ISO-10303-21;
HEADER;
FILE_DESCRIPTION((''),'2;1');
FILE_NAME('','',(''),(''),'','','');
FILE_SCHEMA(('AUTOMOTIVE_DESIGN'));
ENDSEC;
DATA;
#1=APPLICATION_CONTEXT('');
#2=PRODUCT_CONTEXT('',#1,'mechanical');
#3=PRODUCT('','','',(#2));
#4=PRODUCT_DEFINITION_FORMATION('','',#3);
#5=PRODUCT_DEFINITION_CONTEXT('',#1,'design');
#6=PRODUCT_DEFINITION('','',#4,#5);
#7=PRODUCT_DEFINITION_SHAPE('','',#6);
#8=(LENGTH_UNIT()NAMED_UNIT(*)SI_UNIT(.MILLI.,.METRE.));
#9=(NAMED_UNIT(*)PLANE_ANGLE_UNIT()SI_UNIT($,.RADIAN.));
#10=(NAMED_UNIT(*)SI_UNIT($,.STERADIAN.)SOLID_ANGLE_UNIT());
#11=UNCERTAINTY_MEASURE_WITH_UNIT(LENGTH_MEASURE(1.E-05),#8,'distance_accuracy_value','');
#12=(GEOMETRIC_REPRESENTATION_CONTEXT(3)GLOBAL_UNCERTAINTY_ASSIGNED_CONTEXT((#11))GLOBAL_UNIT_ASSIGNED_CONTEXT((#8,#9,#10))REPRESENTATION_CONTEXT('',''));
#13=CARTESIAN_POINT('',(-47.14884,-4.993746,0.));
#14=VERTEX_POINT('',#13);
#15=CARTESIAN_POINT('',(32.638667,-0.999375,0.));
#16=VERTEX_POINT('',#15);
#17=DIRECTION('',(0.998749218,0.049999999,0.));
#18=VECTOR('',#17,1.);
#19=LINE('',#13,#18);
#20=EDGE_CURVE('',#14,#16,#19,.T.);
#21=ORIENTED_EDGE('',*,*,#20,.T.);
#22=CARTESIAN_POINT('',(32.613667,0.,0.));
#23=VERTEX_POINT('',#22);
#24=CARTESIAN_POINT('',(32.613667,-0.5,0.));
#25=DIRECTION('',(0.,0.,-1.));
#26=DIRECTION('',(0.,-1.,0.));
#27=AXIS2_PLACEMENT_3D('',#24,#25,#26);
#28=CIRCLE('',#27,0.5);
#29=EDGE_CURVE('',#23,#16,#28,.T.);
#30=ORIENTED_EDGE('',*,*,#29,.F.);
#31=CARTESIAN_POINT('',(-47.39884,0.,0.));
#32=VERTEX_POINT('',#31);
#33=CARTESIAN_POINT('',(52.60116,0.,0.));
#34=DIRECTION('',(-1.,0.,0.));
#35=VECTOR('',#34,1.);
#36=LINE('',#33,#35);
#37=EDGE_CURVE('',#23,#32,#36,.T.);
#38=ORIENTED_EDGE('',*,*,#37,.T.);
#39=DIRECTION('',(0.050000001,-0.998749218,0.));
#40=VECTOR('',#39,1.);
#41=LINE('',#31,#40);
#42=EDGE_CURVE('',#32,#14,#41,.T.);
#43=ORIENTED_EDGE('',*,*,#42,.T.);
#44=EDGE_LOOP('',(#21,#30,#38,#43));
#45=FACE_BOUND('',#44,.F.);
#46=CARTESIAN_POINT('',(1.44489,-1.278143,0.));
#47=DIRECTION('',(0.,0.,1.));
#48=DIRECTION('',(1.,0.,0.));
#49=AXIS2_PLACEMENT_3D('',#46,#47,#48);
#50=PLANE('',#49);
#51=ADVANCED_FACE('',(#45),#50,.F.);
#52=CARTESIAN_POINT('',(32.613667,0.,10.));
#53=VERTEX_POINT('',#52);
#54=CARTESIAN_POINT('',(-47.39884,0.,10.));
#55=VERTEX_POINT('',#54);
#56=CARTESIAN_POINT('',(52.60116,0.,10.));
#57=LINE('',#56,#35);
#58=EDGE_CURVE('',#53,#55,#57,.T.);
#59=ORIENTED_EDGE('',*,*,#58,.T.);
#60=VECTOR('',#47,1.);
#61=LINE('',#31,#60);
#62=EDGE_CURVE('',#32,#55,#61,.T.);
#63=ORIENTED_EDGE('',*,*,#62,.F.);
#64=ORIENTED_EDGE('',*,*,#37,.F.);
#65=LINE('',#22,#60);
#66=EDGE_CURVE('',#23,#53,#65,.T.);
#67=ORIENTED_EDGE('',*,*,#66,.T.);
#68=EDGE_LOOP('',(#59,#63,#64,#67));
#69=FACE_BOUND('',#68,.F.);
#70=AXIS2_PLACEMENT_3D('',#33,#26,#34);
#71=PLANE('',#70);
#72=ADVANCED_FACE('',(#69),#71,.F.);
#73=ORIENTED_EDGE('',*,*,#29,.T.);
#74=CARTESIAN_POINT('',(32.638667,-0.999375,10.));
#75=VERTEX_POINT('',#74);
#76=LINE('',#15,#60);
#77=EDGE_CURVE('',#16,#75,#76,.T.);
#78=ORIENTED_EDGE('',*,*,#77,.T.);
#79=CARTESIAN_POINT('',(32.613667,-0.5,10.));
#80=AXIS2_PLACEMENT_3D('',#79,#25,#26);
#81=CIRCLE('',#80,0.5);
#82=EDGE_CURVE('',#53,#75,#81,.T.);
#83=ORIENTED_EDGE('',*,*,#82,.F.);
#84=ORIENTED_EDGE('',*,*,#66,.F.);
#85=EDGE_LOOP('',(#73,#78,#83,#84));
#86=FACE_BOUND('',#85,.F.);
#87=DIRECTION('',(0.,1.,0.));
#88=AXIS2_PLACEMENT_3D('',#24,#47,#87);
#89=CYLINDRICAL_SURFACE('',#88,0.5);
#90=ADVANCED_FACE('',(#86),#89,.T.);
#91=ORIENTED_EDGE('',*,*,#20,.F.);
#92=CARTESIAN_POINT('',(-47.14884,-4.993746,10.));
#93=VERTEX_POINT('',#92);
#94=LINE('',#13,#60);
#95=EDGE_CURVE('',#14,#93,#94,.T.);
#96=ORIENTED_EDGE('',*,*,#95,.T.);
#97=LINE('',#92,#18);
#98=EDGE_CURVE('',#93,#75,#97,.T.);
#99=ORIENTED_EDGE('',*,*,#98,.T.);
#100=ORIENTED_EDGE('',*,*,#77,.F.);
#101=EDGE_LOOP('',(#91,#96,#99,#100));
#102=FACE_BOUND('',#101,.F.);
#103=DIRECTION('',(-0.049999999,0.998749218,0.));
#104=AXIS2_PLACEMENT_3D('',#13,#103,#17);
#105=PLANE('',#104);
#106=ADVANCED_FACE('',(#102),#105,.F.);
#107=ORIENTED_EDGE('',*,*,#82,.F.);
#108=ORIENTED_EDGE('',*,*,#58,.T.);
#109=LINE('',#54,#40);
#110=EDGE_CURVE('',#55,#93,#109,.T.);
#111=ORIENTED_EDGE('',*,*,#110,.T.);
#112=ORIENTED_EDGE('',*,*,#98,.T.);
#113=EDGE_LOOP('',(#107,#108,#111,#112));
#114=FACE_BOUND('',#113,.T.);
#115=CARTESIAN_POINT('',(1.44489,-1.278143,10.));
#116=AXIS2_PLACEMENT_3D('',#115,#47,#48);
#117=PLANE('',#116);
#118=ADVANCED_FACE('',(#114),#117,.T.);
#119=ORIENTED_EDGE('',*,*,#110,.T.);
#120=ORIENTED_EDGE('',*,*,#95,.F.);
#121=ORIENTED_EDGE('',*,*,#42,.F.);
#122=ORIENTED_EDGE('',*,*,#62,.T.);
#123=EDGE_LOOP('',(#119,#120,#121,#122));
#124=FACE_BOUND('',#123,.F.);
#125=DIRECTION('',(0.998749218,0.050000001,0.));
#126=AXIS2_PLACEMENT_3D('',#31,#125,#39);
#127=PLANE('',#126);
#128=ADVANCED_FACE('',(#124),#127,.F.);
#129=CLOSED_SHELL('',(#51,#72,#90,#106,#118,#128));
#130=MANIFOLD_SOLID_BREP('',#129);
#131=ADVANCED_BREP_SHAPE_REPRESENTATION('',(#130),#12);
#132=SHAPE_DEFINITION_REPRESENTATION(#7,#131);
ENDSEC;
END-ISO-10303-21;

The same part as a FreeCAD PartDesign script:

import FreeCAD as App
import Part
import Sketcher


def edges_at(feature, points):
    """Names of the edges that pass closest to the given points."""
    edges = feature.Shape.Edges
    near = lambda p: min(range(len(edges)), key=lambda i: edges[i].distToShape(Part.Vertex(*p))[0])
    return sorted({f"Edge{near(p) + 1}" for p in points})

doc = App.newDocument("Part")
body = doc.addObject("PartDesign::Body", "Body")

# Sketch on XY plane
sketch1 = body.newObject("Sketcher::SketchObject", "Sketch")
sketch1.AttachmentSupport = (doc.getObject("XY_Plane"), [""])
sketch1.MapMode = "FlatFace"
sketch1.addGeometry(Part.LineSegment(App.Vector(52.60116, 0, 0), App.Vector(-47.39884, 0, 0)), False)
sketch1.addGeometry(Part.LineSegment(App.Vector(-47.39884, 0, 0), App.Vector(-47.14884, -4.993746, 0)), False)
sketch1.addGeometry(Part.LineSegment(App.Vector(-47.14884, -4.993746, 0), App.Vector(52.60116, 0, 0)), False)
sketch1.addConstraint(Sketcher.Constraint("Coincident", 0, 2, 1, 1))
sketch1.addConstraint(Sketcher.Constraint("Coincident", 1, 2, 2, 1))
sketch1.addConstraint(Sketcher.Constraint("Coincident", 2, 2, 0, 1))
sketch1.addConstraint(Sketcher.Constraint("Horizontal", 0))
sketch1.addConstraint(Sketcher.Constraint("PointOnObject", 0, 2, -1))
sketch1.addConstraint(Sketcher.Constraint("Perpendicular", 1, 2))
sketch1.addConstraint(Sketcher.Constraint("DistanceX", 0, 2, 0, 1, 100.0))
sketch1.addConstraint(Sketcher.Constraint("Distance", 1, 5.0))
sketch1.addConstraint(Sketcher.Constraint("DistanceX", 0, 2, -1, 1, 47.39884))
pad1 = body.newObject("PartDesign::Pad", "Pad")
pad1.Profile = sketch1
pad1.Length = 10
doc.recompute()

fillet = body.newObject("PartDesign::Fillet", "Fillet")
fillet.Base = (pad1, edges_at(pad1, [(52.601, 0, 5)]))
fillet.Radius = 0.5

doc.recompute()
